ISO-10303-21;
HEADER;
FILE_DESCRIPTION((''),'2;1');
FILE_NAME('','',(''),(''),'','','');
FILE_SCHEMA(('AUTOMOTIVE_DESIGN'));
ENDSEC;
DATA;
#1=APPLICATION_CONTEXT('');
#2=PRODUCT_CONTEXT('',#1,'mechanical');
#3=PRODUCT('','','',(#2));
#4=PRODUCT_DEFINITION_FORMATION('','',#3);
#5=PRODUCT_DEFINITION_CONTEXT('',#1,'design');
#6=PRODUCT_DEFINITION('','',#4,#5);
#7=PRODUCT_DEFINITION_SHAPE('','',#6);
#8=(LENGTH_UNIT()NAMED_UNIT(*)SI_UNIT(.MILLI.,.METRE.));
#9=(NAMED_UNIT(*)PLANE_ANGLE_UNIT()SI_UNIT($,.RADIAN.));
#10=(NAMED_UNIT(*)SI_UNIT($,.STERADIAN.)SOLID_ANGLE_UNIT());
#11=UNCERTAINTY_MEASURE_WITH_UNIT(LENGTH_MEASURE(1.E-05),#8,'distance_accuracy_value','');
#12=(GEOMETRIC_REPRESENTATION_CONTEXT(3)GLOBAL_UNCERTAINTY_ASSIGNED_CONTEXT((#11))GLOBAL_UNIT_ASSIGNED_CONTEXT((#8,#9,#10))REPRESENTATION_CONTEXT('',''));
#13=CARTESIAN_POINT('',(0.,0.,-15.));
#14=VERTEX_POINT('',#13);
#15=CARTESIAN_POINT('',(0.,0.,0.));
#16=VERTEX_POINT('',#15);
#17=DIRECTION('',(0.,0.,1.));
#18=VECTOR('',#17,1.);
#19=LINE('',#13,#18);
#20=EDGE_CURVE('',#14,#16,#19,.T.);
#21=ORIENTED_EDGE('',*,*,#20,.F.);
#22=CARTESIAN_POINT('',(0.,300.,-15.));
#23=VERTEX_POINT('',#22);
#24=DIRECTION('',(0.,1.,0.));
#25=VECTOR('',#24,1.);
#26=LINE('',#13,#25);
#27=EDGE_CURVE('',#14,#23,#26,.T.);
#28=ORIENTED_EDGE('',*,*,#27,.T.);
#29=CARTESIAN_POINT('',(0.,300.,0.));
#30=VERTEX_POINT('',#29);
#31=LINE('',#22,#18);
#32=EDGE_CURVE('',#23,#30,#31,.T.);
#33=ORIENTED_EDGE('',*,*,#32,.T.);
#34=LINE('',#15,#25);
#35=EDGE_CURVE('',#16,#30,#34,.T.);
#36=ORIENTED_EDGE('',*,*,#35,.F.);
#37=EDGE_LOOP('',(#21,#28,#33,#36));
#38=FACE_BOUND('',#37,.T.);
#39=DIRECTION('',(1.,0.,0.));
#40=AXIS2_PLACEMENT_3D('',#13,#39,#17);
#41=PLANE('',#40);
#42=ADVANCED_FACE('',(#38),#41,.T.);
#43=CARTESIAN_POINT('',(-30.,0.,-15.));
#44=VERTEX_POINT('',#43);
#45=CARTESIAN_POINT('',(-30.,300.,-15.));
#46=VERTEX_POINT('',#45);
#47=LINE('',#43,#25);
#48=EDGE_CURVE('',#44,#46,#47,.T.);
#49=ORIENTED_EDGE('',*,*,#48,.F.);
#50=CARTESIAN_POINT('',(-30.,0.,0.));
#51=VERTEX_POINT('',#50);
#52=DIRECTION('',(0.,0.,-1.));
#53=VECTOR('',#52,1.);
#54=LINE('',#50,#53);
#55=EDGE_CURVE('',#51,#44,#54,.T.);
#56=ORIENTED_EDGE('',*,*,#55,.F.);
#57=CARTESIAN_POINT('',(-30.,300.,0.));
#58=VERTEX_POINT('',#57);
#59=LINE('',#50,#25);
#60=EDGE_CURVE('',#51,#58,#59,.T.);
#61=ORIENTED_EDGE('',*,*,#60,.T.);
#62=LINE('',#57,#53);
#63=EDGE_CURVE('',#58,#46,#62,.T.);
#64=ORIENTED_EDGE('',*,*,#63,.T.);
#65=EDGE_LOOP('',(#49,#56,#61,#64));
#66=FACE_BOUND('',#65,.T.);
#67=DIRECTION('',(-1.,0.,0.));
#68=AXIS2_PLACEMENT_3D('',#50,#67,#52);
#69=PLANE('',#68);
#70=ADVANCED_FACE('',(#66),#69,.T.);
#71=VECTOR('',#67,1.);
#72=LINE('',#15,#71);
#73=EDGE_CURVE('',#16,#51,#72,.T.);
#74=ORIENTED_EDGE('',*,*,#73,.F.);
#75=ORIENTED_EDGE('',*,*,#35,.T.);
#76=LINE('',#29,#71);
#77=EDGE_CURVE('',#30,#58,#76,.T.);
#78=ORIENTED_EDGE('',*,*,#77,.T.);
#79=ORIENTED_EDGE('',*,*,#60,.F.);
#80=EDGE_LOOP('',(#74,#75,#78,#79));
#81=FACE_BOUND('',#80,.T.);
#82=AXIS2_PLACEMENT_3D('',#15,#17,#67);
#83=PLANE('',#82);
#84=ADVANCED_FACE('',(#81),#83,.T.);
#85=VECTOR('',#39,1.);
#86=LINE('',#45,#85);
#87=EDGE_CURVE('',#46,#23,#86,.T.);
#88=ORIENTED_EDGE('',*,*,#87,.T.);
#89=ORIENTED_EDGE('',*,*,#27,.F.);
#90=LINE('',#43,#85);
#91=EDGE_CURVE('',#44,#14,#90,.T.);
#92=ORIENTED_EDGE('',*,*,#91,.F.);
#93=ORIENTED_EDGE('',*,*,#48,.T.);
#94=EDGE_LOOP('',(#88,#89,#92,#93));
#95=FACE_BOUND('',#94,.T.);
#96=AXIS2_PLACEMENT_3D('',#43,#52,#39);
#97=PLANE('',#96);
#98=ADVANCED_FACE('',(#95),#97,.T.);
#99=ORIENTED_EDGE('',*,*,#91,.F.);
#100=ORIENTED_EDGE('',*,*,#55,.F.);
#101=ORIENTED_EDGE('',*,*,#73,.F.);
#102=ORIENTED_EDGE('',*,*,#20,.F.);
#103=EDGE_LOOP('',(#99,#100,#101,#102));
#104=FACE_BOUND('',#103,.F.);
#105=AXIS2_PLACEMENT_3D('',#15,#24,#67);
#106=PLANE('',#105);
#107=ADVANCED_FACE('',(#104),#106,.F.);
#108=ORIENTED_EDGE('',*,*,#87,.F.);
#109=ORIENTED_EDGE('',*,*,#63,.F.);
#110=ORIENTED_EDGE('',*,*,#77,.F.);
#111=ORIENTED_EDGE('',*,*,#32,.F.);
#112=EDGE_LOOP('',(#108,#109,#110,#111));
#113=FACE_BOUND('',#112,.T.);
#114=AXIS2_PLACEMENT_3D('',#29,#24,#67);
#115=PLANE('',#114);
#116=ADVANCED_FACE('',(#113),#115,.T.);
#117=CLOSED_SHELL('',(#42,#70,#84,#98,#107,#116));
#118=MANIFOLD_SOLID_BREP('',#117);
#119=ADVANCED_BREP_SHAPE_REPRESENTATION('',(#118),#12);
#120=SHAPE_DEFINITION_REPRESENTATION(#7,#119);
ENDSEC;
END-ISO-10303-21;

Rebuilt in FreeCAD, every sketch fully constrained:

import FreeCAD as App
import Part
import Sketcher
from FreeCAD import Vector
Q = App.Units.Quantity


def add_polygon(sketch, points):
    """Adds a closed chain of lines whose ends are joined by coincident constraints."""
    first, n = sketch.GeometryCount, len(points)
    for a, b in zip(points, points[1:] + points[:1]):
        sketch.addGeometry(Part.LineSegment(App.Vector(*a, 0), App.Vector(*b, 0)), False)
    for i in range(n):
        sketch.addConstraint(Sketcher.Constraint("Coincident", first + i, 2, first + (i + 1) % n, 1))

doc = App.newDocument("Part")
body = doc.addObject("PartDesign::Body", "Body")

# Sketch on XZ plane
sketch1 = doc.addObject("Sketcher::SketchObject", "Sketch")
body.addObject(sketch1)
sketch1.AttachmentSupport = (doc.XZ_Plane, [""])
sketch1.MapMode = "FlatFace"
add_polygon(sketch1, [(-30, 0), (0, 0), (0, -15), (-30, -15)])  # lines 0-3
sketch1.addConstraint([
    Sketcher.Constraint("Horizontal", 0),
    Sketcher.Constraint("Vertical", 1),
    Sketcher.Constraint("Horizontal", 2),
    Sketcher.Constraint("Vertical", 3),
    Sketcher.Constraint("Coincident", 0, 2, -1, 1),
    Sketcher.Constraint("DistanceX", 0, 1, 0, 2, Q("30 mm")),
    Sketcher.Constraint("DistanceY", 1, 2, 1, 1, Q("15 mm")),
])
pad1 = doc.addObject("PartDesign::Pad", "Pad")
body.addObject(pad1)
pad1.Profile = sketch1
pad1.Length = 300
pad1.Reversed = True

doc.recompute()
